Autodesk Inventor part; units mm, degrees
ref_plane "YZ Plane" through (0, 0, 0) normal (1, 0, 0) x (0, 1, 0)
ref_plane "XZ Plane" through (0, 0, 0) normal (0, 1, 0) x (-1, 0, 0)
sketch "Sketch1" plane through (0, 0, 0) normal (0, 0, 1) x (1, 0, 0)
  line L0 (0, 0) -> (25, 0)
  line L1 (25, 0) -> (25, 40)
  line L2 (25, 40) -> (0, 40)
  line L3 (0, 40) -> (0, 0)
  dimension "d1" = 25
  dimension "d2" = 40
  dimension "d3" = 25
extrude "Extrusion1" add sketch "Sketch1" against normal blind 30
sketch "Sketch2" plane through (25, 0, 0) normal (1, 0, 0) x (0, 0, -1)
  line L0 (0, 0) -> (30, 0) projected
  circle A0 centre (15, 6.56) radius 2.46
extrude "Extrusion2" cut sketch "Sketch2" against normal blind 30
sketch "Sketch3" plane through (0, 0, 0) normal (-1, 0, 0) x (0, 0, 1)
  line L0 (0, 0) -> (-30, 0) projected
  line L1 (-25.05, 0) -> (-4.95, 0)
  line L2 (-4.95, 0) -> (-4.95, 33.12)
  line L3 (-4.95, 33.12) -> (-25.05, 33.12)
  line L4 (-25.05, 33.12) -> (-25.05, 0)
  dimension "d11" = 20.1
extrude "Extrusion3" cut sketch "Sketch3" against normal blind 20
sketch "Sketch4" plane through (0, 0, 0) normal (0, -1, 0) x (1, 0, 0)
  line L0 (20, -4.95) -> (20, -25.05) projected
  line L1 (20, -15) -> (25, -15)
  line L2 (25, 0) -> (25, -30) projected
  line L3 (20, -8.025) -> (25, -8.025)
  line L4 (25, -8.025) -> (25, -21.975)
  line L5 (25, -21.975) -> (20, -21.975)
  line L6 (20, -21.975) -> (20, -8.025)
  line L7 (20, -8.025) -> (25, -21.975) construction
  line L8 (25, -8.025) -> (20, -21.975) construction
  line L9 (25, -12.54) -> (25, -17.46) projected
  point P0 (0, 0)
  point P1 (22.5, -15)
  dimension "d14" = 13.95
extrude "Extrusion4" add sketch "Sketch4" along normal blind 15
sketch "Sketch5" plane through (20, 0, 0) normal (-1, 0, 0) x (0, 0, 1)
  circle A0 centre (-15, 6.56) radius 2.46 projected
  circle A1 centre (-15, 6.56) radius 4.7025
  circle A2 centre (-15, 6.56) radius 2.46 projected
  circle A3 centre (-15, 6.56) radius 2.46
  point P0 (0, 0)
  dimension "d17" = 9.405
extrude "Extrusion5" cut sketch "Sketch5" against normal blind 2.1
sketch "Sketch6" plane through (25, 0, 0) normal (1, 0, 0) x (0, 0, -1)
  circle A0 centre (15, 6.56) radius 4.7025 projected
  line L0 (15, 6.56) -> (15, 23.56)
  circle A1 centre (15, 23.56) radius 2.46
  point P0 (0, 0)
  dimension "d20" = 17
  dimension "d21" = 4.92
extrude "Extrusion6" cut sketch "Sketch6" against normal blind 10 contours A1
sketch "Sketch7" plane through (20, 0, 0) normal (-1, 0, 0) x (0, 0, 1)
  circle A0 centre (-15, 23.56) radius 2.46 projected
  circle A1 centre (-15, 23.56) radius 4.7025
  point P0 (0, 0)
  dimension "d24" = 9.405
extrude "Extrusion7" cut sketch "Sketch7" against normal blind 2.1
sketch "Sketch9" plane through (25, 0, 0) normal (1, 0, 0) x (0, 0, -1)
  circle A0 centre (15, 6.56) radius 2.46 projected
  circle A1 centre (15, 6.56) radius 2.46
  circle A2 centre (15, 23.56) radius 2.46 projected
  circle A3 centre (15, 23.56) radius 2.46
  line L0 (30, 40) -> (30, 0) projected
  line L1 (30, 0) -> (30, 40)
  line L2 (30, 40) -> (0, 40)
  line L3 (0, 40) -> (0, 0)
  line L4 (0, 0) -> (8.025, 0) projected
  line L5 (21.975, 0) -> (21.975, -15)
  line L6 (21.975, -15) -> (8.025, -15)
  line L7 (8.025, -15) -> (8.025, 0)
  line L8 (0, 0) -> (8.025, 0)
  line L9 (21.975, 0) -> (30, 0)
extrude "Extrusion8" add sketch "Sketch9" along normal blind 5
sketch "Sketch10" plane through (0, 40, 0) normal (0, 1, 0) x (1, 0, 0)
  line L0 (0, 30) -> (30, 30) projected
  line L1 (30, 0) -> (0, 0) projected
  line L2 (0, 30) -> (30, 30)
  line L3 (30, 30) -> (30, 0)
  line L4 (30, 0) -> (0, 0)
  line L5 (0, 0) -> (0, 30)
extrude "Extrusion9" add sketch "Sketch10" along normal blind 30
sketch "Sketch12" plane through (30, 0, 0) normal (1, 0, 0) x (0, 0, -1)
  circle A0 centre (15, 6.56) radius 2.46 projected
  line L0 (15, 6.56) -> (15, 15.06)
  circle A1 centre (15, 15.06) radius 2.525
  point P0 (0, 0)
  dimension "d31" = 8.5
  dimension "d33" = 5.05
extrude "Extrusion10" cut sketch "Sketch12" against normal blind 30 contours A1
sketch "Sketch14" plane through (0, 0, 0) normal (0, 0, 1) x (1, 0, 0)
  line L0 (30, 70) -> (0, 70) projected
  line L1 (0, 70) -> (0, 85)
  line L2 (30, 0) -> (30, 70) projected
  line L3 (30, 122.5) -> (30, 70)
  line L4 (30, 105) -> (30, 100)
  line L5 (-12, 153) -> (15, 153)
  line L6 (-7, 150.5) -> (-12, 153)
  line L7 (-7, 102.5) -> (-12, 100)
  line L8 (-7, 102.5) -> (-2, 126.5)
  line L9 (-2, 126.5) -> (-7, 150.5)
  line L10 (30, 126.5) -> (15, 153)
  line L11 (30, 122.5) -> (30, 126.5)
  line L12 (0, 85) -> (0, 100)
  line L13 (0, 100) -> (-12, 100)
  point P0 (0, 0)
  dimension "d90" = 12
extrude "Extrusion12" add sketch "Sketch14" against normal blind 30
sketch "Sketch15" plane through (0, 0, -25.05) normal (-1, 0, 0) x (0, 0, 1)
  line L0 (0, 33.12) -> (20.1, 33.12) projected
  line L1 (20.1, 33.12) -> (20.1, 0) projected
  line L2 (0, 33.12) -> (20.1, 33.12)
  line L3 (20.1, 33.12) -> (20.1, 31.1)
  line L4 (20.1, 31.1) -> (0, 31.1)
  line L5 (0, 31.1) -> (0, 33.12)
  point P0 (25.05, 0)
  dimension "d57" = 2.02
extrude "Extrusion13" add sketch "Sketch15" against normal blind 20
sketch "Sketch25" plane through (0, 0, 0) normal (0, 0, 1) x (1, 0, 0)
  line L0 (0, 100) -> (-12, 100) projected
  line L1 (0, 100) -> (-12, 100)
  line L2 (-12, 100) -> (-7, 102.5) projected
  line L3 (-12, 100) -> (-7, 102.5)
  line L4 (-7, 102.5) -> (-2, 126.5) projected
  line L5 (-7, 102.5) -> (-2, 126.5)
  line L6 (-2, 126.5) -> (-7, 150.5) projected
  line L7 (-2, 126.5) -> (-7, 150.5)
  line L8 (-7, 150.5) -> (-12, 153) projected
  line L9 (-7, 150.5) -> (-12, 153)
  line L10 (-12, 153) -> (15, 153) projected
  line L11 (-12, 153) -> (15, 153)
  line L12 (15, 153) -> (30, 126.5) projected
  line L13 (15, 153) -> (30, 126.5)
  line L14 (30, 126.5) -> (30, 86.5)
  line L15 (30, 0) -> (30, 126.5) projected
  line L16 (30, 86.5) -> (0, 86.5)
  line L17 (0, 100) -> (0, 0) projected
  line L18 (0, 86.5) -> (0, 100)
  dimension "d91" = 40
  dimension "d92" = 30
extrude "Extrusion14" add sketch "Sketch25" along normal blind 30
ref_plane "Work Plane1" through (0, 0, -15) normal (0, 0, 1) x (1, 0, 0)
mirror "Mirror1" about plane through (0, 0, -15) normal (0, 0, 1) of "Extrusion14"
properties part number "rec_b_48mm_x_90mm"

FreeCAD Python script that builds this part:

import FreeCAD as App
import Part
import Sketcher
from FreeCAD import Vector
Q = App.Units.Quantity


def add_polygon(sketch, points):
    """Adds a closed chain of lines whose ends are joined by coincident constraints."""
    first, n = sketch.GeometryCount, len(points)
    for a, b in zip(points, points[1:] + points[:1]):
        sketch.addGeometry(Part.LineSegment(App.Vector(*a, 0), App.Vector(*b, 0)), False)
    for i in range(n):
        sketch.addConstraint(Sketcher.Constraint("Coincident", first + i, 2, first + (i + 1) % n, 1))

doc = App.newDocument("Part")
body = doc.addObject("PartDesign::Body", "Body")

# Sketch on XY plane
sketch1 = body.newObject("Sketcher::SketchObject", "Sketch")
sketch1.AttachmentSupport = (doc.getObject("XY_Plane"), [""])
sketch1.MapMode = "FlatFace"
add_polygon(sketch1, [(0, 40), (0, 0), (25, 0), (25, 40)])  # lines 0-3
sketch1.addConstraint(Sketcher.Constraint("Vertical", 0))
sketch1.addConstraint(Sketcher.Constraint("Horizontal", 1))
sketch1.addConstraint(Sketcher.Constraint("Vertical", 2))
sketch1.addConstraint(Sketcher.Constraint("Horizontal", 3))
sketch1.addConstraint(Sketcher.Constraint("Coincident", 0, 2, -1, 1))
sketch1.addConstraint(Sketcher.Constraint("DistanceX", 1, 1, 1, 2, Q("25 mm")))
sketch1.addConstraint(Sketcher.Constraint("DistanceY", 0, 2, 0, 1, Q("40 mm")))
pad1 = body.newObject("PartDesign::Pad", "Pad")
pad1.Profile = sketch1
pad1.Length = 30
pad1.Reversed = True

# Sketch on YZ plane
sketch2 = body.newObject("Sketcher::SketchObject", "Sketch001")
sketch2.AttachmentSupport = (doc.getObject("YZ_Plane"), [""])
sketch2.MapMode = "FlatFace"
sketch2.AttachmentOffset = App.Placement(Vector(0, 0, 25), App.Rotation())
sketch2.addGeometry(Part.Circle(Vector(6.6, -15, 0), Vector(0, 0, 1), 2.5), False)
sketch2.addConstraint(Sketcher.Constraint("Diameter", 0, Q("4.92 mm")))
sketch2.addConstraint(Sketcher.Constraint("DistanceY", 0, 3, -1, 1, Q("15 mm")))
sketch2.addConstraint(Sketcher.Constraint("DistanceX", -1, 1, 0, 3, Q("6.56 mm")))
pocket1 = body.newObject("PartDesign::Pocket", "Pocket")
pocket1.Profile = sketch2
pocket1.Length = 30

# Sketch on YZ plane
sketch3 = body.newObject("Sketcher::SketchObject", "Sketch002")
sketch3.AttachmentSupport = (doc.getObject("YZ_Plane"), [""])
sketch3.MapMode = "FlatFace"
add_polygon(sketch3, [(0, -25), (0, -5), (33, -5), (33, -25)])  # lines 0-3
sketch3.addConstraint(Sketcher.Constraint("Vertical", 0))
sketch3.addConstraint(Sketcher.Constraint("Horizontal", 1))
sketch3.addConstraint(Sketcher.Constraint("Vertical", 2))
sketch3.addConstraint(Sketcher.Constraint("Horizontal", 3))
sketch3.addConstraint(Sketcher.Constraint("PointOnObject", 0, 2, -2))
sketch3.addConstraint(Sketcher.Constraint("DistanceY", 0, 1, 0, 2, Q("20.1 mm")))
sketch3.addConstraint(Sketcher.Constraint("DistanceX", 1, 1, 1, 2, Q("33.12 mm")))
sketch3.addConstraint(Sketcher.Constraint("DistanceY", 0, 2, -1, 1, Q("4.95 mm")))
pocket2 = body.newObject("PartDesign::Pocket", "Pocket001")
pocket2.Profile = sketch3
pocket2.Length = 20
pocket2.Reversed = True

# Sketch on XZ plane
sketch4 = body.newObject("Sketcher::SketchObject", "Sketch003")
sketch4.AttachmentSupport = (doc.getObject("XZ_Plane"), [""])
sketch4.MapMode = "FlatFace"
add_polygon(sketch4, [(25, -8), (20, -8), (20, -22), (25, -22)])  # lines 0-3
sketch4.addConstraint(Sketcher.Constraint("Horizontal", 0))
sketch4.addConstraint(Sketcher.Constraint("Vertical", 1))
sketch4.addConstraint(Sketcher.Constraint("Horizontal", 2))
sketch4.addConstraint(Sketcher.Constraint("Vertical", 3))
sketch4.addConstraint(Sketcher.Constraint("DistanceY", 1, 2, 1, 1, Q("13.95 mm")))
sketch4.addConstraint(Sketcher.Constraint("DistanceX", 0, 2, 0, 1, Q("5 mm")))
sketch4.addConstraint(Sketcher.Constraint("DistanceX", -1, 1, 0, 2, Q("20 mm")))
sketch4.addConstraint(Sketcher.Constraint("DistanceY", 0, 2, -1, 1, Q("8.025 mm")))
pad2 = body.newObject("PartDesign::Pad", "Pad001")
pad2.Profile = sketch4
pad2.Length = 15

# Sketch on YZ plane
sketch5 = body.newObject("Sketcher::SketchObject", "Sketch004")
sketch5.AttachmentSupport = (doc.getObject("YZ_Plane"), [""])
sketch5.MapMode = "FlatFace"
sketch5.AttachmentOffset = App.Placement(Vector(0, 0, 20), App.Rotation())
sketch5.addGeometry(Part.Circle(Vector(6.6, -15, 0), Vector(0, 0, 1), 4.7), False)
sketch5.addGeometry(Part.Circle(Vector(6.6, -15, 0), Vector(0, 0, 1), 2.5), False)
sketch5.addConstraint(Sketcher.Constraint("Coincident", 1, 3, 0, 3))
sketch5.addConstraint(Sketcher.Constraint("Diameter", 0, Q("9.405 mm")))
sketch5.addConstraint(Sketcher.Constraint("Diameter", 1, Q("4.92 mm")))
sketch5.addConstraint(Sketcher.Constraint("DistanceY", 0, 3, -1, 1, Q("15 mm")))
sketch5.addConstraint(Sketcher.Constraint("DistanceX", -1, 1, 0, 3, Q("6.56 mm")))
pocket3 = body.newObject("PartDesign::Pocket", "Pocket002")
pocket3.Profile = sketch5
pocket3.Length = 2.1
pocket3.Reversed = True

# Sketch on YZ plane
sketch6 = body.newObject("Sketcher::SketchObject", "Sketch005")
sketch6.AttachmentSupport = (doc.getObject("YZ_Plane"), [""])
sketch6.MapMode = "FlatFace"
sketch6.AttachmentOffset = App.Placement(Vector(0, 0, 25), App.Rotation())
sketch6.addGeometry(Part.Circle(Vector(23.6, -15, 0), Vector(0, 0, 1), 2.5), False)
sketch6.addConstraint(Sketcher.Constraint("Diameter", 0, Q("4.92 mm")))
sketch6.addConstraint(Sketcher.Constraint("DistanceY", 0, 3, -1, 1, Q("15 mm")))
sketch6.addConstraint(Sketcher.Constraint("DistanceX", -1, 1, 0, 3, Q("23.56 mm")))
pocket4 = body.newObject("PartDesign::Pocket", "Pocket003")
pocket4.Profile = sketch6
pocket4.Length = 10

# Sketch on YZ plane
sketch7 = body.newObject("Sketcher::SketchObject", "Sketch006")
sketch7.AttachmentSupport = (doc.getObject("YZ_Plane"), [""])
sketch7.MapMode = "FlatFace"
sketch7.AttachmentOffset = App.Placement(Vector(0, 0, 20), App.Rotation())
sketch7.addGeometry(Part.Circle(Vector(23.6, -15, 0), Vector(0, 0, 1), 4.7), False)
sketch7.addGeometry(Part.Circle(Vector(23.6, -15, 0), Vector(0, 0, 1), 2.5), False)
sketch7.addConstraint(Sketcher.Constraint("Coincident", 1, 3, 0, 3))
sketch7.addConstraint(Sketcher.Constraint("Diameter", 0, Q("9.405 mm")))
sketch7.addConstraint(Sketcher.Constraint("Diameter", 1, Q("4.92 mm")))
sketch7.addConstraint(Sketcher.Constraint("DistanceY", 0, 3, -1, 1, Q("15 mm")))
sketch7.addConstraint(Sketcher.Constraint("DistanceX", -1, 1, 0, 3, Q("23.56 mm")))
pocket5 = body.newObject("PartDesign::Pocket", "Pocket004")
pocket5.Profile = sketch7
pocket5.Length = 2.1
pocket5.Reversed = True

# Sketch on YZ plane
sketch8 = body.newObject("Sketcher::SketchObject", "Sketch007")
sketch8.AttachmentSupport = (doc.getObject("YZ_Plane"), [""])
sketch8.MapMode = "FlatFace"
sketch8.AttachmentOffset = App.Placement(Vector(0, 0, 25), App.Rotation())
add_polygon(sketch8, [(0, -30), (40, -30), (40, 0), (0, 0), (0, -8), (-15, -8), (-15, -22), (0, -22)])  # lines 0-7
sketch8.addGeometry(Part.Circle(Vector(6.6, -15, 0), Vector(0, 0, 1), 2.5), False)  # 8
sketch8.addGeometry(Part.Circle(Vector(23.6, -15, 0), Vector(0, 0, 1), 2.5), False)  # 9
sketch8.addConstraint(Sketcher.Constraint("Horizontal", 0))
sketch8.addConstraint(Sketcher.Constraint("Vertical", 1))
sketch8.addConstraint(Sketcher.Constraint("Horizontal", 2))
sketch8.addConstraint(Sketcher.Constraint("Vertical", 3))
sketch8.addConstraint(Sketcher.Constraint("Horizontal", 4))
sketch8.addConstraint(Sketcher.Constraint("Vertical", 5))
sketch8.addConstraint(Sketcher.Constraint("Horizontal", 6))
sketch8.addConstraint(Sketcher.Constraint("Vertical", 7))
sketch8.addConstraint(Sketcher.Constraint("Coincident", 2, 2, -1, 1))
sketch8.addConstraint(Sketcher.Constraint("Equal", 8, 9))
sketch8.addConstraint(Sketcher.Constraint("PointOnObject", 6, 2, -2))
sketch8.addConstraint(Sketcher.Constraint("Horizontal", 8, 3, 9, 3))
sketch8.addConstraint(Sketcher.Constraint("Equal", 3, 7))
sketch8.addConstraint(Sketcher.Constraint("Diameter", 8, Q("4.92 mm")))
sketch8.addConstraint(Sketcher.Constraint("DistanceX", 0, 1, 0, 2, Q("40 mm")))
sketch8.addConstraint(Sketcher.Constraint("DistanceX", 4, 2, 4, 1, Q("15 mm")))
sketch8.addConstraint(Sketcher.Constraint("DistanceY", 1, 1, 1, 2, Q("30 mm")))
sketch8.addConstraint(Sketcher.Constraint("DistanceY", 8, 3, -1, 1, Q("15 mm")))
sketch8.addConstraint(Sketcher.Constraint("DistanceX", 8, 3, 9, 3, Q("17 mm")))
sketch8.addConstraint(Sketcher.Constraint("DistanceY", 5, 2, 5, 1, Q("13.95 mm")))
sketch8.addConstraint(Sketcher.Constraint("DistanceX", -1, 1, 8, 3, Q("6.56 mm")))
pad3 = body.newObject("PartDesign::Pad", "Pad002")
pad3.Profile = sketch8
pad3.Length = 5

# Sketch on XZ plane
sketch9 = body.newObject("Sketcher::SketchObject", "Sketch008")
sketch9.AttachmentSupport = (doc.getObject("XZ_Plane"), [""])
sketch9.MapMode = "FlatFace"
sketch9.AttachmentOffset = App.Placement(Vector(0, 0, -40), App.Rotation())
add_polygon(sketch9, [(30, -30), (0, -30), (0, 0), (30, 0)])  # lines 0-3
sketch9.addConstraint(Sketcher.Constraint("Horizontal", 0))
sketch9.addConstraint(Sketcher.Constraint("Vertical", 1))
sketch9.addConstraint(Sketcher.Constraint("Horizontal", 2))
sketch9.addConstraint(Sketcher.Constraint("Vertical", 3))
sketch9.addConstraint(Sketcher.Constraint("Coincident", 1, 2, -1, 1))
sketch9.addConstraint(Sketcher.Constraint("Equal", 2, 1))
sketch9.addConstraint(Sketcher.Constraint("DistanceX", 0, 2, 0, 1, Q("30 mm")))
pad4 = body.newObject("PartDesign::Pad", "Pad003")
pad4.Profile = sketch9
pad4.Length = 30
pad4.Reversed = True

# Sketch on YZ plane
sketch10 = body.newObject("Sketcher::SketchObject", "Sketch009")
sketch10.AttachmentSupport = (doc.getObject("YZ_Plane"), [""])
sketch10.MapMode = "FlatFace"
sketch10.AttachmentOffset = App.Placement(Vector(0, 0, 30), App.Rotation())
sketch10.addGeometry(Part.Circle(Vector(15.1, -15, 0), Vector(0, 0, 1), 2.5), False)
sketch10.addConstraint(Sketcher.Constraint("Diameter", 0, Q("5.05 mm")))
sketch10.addConstraint(Sketcher.Constraint("DistanceY", 0, 3, -1, 1, Q("15 mm")))
sketch10.addConstraint(Sketcher.Constraint("DistanceX", -1, 1, 0, 3, Q("15.06 mm")))
pocket6 = body.newObject("PartDesign::Pocket", "Pocket005")
pocket6.Profile = sketch10
pocket6.Length = 30

# Sketch on XY plane
sketch11 = body.newObject("Sketcher::SketchObject", "Sketch010")
sketch11.AttachmentSupport = (doc.getObject("XY_Plane"), [""])
sketch11.MapMode = "FlatFace"
add_polygon(sketch11, [(0, 70), (30, 70), (30, 126), (15, 153), (-12, 153), (-7, 150), (-2, 126), (-7, 102), (-12, 100), (0, 100)])  # lines 0-9
sketch11.addConstraint(Sketcher.Constraint("Horizontal", 0))
sketch11.addConstraint(Sketcher.Constraint("Vertical", 1))
sketch11.addConstraint(Sketcher.Constraint("Horizontal", 3))
sketch11.addConstraint(Sketcher.Constraint("Horizontal", 8))
sketch11.addConstraint(Sketcher.Constraint("Vertical", 9))
sketch11.addConstraint(Sketcher.Constraint("PointOnObject", 8, 2, -2))
sketch11.addConstraint(Sketcher.Constraint("Horizontal", 1, 2, 5, 2))
sketch11.addConstraint(Sketcher.Constraint("Vertical", 4, 2, 6, 2))
sketch11.addConstraint(Sketcher.Constraint("Vertical", 3, 2, 7, 2))
sketch11.addConstraint(Sketcher.Constraint("Equal", 0, 9))
sketch11.addConstraint(Sketcher.Constraint("Equal", 5, 6))
sketch11.addConstraint(Sketcher.Constraint("Equal", 4, 7))
sketch11.addConstraint(Sketcher.Constraint("DistanceX", 8, 1, 8, 2, Q("12 mm")))
sketch11.addConstraint(Sketcher.Constraint("DistanceX", 0, 1, 0, 2, Q("30 mm")))
sketch11.addConstraint(Sketcher.Constraint("DistanceX", 3, 2, 3, 1, Q("27 mm")))
sketch11.addConstraint(Sketcher.Constraint("DistanceY", 1, 1, 1, 2, Q("56.5 mm")))
sketch11.addConstraint(Sketcher.Constraint("DistanceY", -1, 1, 0, 2, Q("70 mm")))
sketch11.addConstraint(Sketcher.Constraint("DistanceX", 4, 2, -1, 1, Q("7 mm")))
sketch11.addConstraint(Sketcher.Constraint("DistanceX", 5, 2, -1, 1, Q("2 mm")))
sketch11.addConstraint(Sketcher.Constraint("DistanceY", 1, 2, 4, 2, Q("24 mm")))
pad5 = body.newObject("PartDesign::Pad", "Pad004")
pad5.Profile = sketch11
pad5.Length = 30
pad5.Reversed = True

# Sketch on YZ plane
sketch12 = body.newObject("Sketcher::SketchObject", "Sketch011")
sketch12.AttachmentSupport = (doc.getObject("YZ_Plane"), [""])
sketch12.MapMode = "FlatFace"
add_polygon(sketch12, [(33.1, -5), (33.1, -25.1), (31.1, -25.1), (31.1, -5)])  # lines 0-3
sketch12.addConstraint(Sketcher.Constraint("Vertical", 0))
sketch12.addConstraint(Sketcher.Constraint("Horizontal", 1))
sketch12.addConstraint(Sketcher.Constraint("Vertical", 2))
sketch12.addConstraint(Sketcher.Constraint("Horizontal", 3))
sketch12.addConstraint(Sketcher.Constraint("DistanceX", 1, 2, 1, 1, Q("2.02 mm")))
sketch12.addConstraint(Sketcher.Constraint("DistanceY", 0, 2, 0, 1, Q("20.1 mm")))
sketch12.addConstraint(Sketcher.Constraint("DistanceX", -1, 1, 1, 2, Q("31.1 mm")))
sketch12.addConstraint(Sketcher.Constraint("DistanceY", 0, 2, -1, 1, Q("25.05 mm")))
pad6 = body.newObject("PartDesign::Pad", "Pad005")
pad6.Profile = sketch12
pad6.Length = 20

# Sketch on XY plane
sketch13 = body.newObject("Sketcher::SketchObject", "Sketch012")
sketch13.AttachmentSupport = (doc.getObject("XY_Plane"), [""])
sketch13.MapMode = "FlatFace"
add_polygon(sketch13, [(-12, 100), (0, 100), (0, 86), (30, 86), (30, 126), (15, 153), (-12, 153), (-7, 150), (-2, 126), (-7, 102)])  # lines 0-9
sketch13.addConstraint(Sketcher.Constraint("Horizontal", 0))
sketch13.addConstraint(Sketcher.Constraint("Vertical", 1))
sketch13.addConstraint(Sketcher.Constraint("Horizontal", 2))
sketch13.addConstraint(Sketcher.Constraint("Vertical", 3))
sketch13.addConstraint(Sketcher.Constraint("Horizontal", 5))
sketch13.addConstraint(Sketcher.Constraint("PointOnObject", 0, 2, -2))
sketch13.addConstraint(Sketcher.Constraint("Horizontal", 3, 2, 7, 2))
sketch13.addConstraint(Sketcher.Constraint("Vertical", 6, 2, 8, 2))
sketch13.addConstraint(Sketcher.Constraint("Vertical", 5, 2, 9, 2))
sketch13.addConstraint(Sketcher.Constraint("Equal", 7, 8))
sketch13.addConstraint(Sketcher.Constraint("Equal", 6, 9))
sketch13.addConstraint(Sketcher.Constraint("DistanceX", 2, 1, 2, 2, Q("30 mm")))
sketch13.addConstraint(Sketcher.Constraint("DistanceY", 3, 1, 3, 2, Q("40 mm")))
sketch13.addConstraint(Sketcher.Constraint("DistanceX", 0, 1, 0, 2, Q("12 mm")))
sketch13.addConstraint(Sketcher.Constraint("DistanceX", 5, 2, 5, 1, Q("27 mm")))
sketch13.addConstraint(Sketcher.Constraint("DistanceY", 1, 2, 1, 1, Q("13.5 mm")))
sketch13.addConstraint(Sketcher.Constraint("DistanceY", -1, 1, 0, 2, Q("100 mm")))
sketch13.addConstraint(Sketcher.Constraint("DistanceX", 6, 2, -1, 1, Q("7 mm")))
sketch13.addConstraint(Sketcher.Constraint("DistanceX", 7, 2, -1, 1, Q("2 mm")))
sketch13.addConstraint(Sketcher.Constraint("DistanceY", 3, 2, 6, 2, Q("24 mm")))
pad7 = body.newObject("PartDesign::Pad", "Pad006")
pad7.Profile = sketch13
pad7.Length = 30
doc.recompute()

datumplane = body.newObject("PartDesign::Plane", "DatumPlane")
datumplane.AttachmentSupport = (doc.getObject("XY_Plane"), [""])
datumplane.MapMode = "FlatFace"
datumplane.AttachmentOffset = App.Placement(Vector(0, 0, -15), App.Rotation())
mirrored = body.newObject("PartDesign::Mirrored", "Mirrored")
mirrored.Originals = [pad7]
mirrored.MirrorPlane = (datumplane, [""])
body.Tip = mirrored

doc.recompute()
